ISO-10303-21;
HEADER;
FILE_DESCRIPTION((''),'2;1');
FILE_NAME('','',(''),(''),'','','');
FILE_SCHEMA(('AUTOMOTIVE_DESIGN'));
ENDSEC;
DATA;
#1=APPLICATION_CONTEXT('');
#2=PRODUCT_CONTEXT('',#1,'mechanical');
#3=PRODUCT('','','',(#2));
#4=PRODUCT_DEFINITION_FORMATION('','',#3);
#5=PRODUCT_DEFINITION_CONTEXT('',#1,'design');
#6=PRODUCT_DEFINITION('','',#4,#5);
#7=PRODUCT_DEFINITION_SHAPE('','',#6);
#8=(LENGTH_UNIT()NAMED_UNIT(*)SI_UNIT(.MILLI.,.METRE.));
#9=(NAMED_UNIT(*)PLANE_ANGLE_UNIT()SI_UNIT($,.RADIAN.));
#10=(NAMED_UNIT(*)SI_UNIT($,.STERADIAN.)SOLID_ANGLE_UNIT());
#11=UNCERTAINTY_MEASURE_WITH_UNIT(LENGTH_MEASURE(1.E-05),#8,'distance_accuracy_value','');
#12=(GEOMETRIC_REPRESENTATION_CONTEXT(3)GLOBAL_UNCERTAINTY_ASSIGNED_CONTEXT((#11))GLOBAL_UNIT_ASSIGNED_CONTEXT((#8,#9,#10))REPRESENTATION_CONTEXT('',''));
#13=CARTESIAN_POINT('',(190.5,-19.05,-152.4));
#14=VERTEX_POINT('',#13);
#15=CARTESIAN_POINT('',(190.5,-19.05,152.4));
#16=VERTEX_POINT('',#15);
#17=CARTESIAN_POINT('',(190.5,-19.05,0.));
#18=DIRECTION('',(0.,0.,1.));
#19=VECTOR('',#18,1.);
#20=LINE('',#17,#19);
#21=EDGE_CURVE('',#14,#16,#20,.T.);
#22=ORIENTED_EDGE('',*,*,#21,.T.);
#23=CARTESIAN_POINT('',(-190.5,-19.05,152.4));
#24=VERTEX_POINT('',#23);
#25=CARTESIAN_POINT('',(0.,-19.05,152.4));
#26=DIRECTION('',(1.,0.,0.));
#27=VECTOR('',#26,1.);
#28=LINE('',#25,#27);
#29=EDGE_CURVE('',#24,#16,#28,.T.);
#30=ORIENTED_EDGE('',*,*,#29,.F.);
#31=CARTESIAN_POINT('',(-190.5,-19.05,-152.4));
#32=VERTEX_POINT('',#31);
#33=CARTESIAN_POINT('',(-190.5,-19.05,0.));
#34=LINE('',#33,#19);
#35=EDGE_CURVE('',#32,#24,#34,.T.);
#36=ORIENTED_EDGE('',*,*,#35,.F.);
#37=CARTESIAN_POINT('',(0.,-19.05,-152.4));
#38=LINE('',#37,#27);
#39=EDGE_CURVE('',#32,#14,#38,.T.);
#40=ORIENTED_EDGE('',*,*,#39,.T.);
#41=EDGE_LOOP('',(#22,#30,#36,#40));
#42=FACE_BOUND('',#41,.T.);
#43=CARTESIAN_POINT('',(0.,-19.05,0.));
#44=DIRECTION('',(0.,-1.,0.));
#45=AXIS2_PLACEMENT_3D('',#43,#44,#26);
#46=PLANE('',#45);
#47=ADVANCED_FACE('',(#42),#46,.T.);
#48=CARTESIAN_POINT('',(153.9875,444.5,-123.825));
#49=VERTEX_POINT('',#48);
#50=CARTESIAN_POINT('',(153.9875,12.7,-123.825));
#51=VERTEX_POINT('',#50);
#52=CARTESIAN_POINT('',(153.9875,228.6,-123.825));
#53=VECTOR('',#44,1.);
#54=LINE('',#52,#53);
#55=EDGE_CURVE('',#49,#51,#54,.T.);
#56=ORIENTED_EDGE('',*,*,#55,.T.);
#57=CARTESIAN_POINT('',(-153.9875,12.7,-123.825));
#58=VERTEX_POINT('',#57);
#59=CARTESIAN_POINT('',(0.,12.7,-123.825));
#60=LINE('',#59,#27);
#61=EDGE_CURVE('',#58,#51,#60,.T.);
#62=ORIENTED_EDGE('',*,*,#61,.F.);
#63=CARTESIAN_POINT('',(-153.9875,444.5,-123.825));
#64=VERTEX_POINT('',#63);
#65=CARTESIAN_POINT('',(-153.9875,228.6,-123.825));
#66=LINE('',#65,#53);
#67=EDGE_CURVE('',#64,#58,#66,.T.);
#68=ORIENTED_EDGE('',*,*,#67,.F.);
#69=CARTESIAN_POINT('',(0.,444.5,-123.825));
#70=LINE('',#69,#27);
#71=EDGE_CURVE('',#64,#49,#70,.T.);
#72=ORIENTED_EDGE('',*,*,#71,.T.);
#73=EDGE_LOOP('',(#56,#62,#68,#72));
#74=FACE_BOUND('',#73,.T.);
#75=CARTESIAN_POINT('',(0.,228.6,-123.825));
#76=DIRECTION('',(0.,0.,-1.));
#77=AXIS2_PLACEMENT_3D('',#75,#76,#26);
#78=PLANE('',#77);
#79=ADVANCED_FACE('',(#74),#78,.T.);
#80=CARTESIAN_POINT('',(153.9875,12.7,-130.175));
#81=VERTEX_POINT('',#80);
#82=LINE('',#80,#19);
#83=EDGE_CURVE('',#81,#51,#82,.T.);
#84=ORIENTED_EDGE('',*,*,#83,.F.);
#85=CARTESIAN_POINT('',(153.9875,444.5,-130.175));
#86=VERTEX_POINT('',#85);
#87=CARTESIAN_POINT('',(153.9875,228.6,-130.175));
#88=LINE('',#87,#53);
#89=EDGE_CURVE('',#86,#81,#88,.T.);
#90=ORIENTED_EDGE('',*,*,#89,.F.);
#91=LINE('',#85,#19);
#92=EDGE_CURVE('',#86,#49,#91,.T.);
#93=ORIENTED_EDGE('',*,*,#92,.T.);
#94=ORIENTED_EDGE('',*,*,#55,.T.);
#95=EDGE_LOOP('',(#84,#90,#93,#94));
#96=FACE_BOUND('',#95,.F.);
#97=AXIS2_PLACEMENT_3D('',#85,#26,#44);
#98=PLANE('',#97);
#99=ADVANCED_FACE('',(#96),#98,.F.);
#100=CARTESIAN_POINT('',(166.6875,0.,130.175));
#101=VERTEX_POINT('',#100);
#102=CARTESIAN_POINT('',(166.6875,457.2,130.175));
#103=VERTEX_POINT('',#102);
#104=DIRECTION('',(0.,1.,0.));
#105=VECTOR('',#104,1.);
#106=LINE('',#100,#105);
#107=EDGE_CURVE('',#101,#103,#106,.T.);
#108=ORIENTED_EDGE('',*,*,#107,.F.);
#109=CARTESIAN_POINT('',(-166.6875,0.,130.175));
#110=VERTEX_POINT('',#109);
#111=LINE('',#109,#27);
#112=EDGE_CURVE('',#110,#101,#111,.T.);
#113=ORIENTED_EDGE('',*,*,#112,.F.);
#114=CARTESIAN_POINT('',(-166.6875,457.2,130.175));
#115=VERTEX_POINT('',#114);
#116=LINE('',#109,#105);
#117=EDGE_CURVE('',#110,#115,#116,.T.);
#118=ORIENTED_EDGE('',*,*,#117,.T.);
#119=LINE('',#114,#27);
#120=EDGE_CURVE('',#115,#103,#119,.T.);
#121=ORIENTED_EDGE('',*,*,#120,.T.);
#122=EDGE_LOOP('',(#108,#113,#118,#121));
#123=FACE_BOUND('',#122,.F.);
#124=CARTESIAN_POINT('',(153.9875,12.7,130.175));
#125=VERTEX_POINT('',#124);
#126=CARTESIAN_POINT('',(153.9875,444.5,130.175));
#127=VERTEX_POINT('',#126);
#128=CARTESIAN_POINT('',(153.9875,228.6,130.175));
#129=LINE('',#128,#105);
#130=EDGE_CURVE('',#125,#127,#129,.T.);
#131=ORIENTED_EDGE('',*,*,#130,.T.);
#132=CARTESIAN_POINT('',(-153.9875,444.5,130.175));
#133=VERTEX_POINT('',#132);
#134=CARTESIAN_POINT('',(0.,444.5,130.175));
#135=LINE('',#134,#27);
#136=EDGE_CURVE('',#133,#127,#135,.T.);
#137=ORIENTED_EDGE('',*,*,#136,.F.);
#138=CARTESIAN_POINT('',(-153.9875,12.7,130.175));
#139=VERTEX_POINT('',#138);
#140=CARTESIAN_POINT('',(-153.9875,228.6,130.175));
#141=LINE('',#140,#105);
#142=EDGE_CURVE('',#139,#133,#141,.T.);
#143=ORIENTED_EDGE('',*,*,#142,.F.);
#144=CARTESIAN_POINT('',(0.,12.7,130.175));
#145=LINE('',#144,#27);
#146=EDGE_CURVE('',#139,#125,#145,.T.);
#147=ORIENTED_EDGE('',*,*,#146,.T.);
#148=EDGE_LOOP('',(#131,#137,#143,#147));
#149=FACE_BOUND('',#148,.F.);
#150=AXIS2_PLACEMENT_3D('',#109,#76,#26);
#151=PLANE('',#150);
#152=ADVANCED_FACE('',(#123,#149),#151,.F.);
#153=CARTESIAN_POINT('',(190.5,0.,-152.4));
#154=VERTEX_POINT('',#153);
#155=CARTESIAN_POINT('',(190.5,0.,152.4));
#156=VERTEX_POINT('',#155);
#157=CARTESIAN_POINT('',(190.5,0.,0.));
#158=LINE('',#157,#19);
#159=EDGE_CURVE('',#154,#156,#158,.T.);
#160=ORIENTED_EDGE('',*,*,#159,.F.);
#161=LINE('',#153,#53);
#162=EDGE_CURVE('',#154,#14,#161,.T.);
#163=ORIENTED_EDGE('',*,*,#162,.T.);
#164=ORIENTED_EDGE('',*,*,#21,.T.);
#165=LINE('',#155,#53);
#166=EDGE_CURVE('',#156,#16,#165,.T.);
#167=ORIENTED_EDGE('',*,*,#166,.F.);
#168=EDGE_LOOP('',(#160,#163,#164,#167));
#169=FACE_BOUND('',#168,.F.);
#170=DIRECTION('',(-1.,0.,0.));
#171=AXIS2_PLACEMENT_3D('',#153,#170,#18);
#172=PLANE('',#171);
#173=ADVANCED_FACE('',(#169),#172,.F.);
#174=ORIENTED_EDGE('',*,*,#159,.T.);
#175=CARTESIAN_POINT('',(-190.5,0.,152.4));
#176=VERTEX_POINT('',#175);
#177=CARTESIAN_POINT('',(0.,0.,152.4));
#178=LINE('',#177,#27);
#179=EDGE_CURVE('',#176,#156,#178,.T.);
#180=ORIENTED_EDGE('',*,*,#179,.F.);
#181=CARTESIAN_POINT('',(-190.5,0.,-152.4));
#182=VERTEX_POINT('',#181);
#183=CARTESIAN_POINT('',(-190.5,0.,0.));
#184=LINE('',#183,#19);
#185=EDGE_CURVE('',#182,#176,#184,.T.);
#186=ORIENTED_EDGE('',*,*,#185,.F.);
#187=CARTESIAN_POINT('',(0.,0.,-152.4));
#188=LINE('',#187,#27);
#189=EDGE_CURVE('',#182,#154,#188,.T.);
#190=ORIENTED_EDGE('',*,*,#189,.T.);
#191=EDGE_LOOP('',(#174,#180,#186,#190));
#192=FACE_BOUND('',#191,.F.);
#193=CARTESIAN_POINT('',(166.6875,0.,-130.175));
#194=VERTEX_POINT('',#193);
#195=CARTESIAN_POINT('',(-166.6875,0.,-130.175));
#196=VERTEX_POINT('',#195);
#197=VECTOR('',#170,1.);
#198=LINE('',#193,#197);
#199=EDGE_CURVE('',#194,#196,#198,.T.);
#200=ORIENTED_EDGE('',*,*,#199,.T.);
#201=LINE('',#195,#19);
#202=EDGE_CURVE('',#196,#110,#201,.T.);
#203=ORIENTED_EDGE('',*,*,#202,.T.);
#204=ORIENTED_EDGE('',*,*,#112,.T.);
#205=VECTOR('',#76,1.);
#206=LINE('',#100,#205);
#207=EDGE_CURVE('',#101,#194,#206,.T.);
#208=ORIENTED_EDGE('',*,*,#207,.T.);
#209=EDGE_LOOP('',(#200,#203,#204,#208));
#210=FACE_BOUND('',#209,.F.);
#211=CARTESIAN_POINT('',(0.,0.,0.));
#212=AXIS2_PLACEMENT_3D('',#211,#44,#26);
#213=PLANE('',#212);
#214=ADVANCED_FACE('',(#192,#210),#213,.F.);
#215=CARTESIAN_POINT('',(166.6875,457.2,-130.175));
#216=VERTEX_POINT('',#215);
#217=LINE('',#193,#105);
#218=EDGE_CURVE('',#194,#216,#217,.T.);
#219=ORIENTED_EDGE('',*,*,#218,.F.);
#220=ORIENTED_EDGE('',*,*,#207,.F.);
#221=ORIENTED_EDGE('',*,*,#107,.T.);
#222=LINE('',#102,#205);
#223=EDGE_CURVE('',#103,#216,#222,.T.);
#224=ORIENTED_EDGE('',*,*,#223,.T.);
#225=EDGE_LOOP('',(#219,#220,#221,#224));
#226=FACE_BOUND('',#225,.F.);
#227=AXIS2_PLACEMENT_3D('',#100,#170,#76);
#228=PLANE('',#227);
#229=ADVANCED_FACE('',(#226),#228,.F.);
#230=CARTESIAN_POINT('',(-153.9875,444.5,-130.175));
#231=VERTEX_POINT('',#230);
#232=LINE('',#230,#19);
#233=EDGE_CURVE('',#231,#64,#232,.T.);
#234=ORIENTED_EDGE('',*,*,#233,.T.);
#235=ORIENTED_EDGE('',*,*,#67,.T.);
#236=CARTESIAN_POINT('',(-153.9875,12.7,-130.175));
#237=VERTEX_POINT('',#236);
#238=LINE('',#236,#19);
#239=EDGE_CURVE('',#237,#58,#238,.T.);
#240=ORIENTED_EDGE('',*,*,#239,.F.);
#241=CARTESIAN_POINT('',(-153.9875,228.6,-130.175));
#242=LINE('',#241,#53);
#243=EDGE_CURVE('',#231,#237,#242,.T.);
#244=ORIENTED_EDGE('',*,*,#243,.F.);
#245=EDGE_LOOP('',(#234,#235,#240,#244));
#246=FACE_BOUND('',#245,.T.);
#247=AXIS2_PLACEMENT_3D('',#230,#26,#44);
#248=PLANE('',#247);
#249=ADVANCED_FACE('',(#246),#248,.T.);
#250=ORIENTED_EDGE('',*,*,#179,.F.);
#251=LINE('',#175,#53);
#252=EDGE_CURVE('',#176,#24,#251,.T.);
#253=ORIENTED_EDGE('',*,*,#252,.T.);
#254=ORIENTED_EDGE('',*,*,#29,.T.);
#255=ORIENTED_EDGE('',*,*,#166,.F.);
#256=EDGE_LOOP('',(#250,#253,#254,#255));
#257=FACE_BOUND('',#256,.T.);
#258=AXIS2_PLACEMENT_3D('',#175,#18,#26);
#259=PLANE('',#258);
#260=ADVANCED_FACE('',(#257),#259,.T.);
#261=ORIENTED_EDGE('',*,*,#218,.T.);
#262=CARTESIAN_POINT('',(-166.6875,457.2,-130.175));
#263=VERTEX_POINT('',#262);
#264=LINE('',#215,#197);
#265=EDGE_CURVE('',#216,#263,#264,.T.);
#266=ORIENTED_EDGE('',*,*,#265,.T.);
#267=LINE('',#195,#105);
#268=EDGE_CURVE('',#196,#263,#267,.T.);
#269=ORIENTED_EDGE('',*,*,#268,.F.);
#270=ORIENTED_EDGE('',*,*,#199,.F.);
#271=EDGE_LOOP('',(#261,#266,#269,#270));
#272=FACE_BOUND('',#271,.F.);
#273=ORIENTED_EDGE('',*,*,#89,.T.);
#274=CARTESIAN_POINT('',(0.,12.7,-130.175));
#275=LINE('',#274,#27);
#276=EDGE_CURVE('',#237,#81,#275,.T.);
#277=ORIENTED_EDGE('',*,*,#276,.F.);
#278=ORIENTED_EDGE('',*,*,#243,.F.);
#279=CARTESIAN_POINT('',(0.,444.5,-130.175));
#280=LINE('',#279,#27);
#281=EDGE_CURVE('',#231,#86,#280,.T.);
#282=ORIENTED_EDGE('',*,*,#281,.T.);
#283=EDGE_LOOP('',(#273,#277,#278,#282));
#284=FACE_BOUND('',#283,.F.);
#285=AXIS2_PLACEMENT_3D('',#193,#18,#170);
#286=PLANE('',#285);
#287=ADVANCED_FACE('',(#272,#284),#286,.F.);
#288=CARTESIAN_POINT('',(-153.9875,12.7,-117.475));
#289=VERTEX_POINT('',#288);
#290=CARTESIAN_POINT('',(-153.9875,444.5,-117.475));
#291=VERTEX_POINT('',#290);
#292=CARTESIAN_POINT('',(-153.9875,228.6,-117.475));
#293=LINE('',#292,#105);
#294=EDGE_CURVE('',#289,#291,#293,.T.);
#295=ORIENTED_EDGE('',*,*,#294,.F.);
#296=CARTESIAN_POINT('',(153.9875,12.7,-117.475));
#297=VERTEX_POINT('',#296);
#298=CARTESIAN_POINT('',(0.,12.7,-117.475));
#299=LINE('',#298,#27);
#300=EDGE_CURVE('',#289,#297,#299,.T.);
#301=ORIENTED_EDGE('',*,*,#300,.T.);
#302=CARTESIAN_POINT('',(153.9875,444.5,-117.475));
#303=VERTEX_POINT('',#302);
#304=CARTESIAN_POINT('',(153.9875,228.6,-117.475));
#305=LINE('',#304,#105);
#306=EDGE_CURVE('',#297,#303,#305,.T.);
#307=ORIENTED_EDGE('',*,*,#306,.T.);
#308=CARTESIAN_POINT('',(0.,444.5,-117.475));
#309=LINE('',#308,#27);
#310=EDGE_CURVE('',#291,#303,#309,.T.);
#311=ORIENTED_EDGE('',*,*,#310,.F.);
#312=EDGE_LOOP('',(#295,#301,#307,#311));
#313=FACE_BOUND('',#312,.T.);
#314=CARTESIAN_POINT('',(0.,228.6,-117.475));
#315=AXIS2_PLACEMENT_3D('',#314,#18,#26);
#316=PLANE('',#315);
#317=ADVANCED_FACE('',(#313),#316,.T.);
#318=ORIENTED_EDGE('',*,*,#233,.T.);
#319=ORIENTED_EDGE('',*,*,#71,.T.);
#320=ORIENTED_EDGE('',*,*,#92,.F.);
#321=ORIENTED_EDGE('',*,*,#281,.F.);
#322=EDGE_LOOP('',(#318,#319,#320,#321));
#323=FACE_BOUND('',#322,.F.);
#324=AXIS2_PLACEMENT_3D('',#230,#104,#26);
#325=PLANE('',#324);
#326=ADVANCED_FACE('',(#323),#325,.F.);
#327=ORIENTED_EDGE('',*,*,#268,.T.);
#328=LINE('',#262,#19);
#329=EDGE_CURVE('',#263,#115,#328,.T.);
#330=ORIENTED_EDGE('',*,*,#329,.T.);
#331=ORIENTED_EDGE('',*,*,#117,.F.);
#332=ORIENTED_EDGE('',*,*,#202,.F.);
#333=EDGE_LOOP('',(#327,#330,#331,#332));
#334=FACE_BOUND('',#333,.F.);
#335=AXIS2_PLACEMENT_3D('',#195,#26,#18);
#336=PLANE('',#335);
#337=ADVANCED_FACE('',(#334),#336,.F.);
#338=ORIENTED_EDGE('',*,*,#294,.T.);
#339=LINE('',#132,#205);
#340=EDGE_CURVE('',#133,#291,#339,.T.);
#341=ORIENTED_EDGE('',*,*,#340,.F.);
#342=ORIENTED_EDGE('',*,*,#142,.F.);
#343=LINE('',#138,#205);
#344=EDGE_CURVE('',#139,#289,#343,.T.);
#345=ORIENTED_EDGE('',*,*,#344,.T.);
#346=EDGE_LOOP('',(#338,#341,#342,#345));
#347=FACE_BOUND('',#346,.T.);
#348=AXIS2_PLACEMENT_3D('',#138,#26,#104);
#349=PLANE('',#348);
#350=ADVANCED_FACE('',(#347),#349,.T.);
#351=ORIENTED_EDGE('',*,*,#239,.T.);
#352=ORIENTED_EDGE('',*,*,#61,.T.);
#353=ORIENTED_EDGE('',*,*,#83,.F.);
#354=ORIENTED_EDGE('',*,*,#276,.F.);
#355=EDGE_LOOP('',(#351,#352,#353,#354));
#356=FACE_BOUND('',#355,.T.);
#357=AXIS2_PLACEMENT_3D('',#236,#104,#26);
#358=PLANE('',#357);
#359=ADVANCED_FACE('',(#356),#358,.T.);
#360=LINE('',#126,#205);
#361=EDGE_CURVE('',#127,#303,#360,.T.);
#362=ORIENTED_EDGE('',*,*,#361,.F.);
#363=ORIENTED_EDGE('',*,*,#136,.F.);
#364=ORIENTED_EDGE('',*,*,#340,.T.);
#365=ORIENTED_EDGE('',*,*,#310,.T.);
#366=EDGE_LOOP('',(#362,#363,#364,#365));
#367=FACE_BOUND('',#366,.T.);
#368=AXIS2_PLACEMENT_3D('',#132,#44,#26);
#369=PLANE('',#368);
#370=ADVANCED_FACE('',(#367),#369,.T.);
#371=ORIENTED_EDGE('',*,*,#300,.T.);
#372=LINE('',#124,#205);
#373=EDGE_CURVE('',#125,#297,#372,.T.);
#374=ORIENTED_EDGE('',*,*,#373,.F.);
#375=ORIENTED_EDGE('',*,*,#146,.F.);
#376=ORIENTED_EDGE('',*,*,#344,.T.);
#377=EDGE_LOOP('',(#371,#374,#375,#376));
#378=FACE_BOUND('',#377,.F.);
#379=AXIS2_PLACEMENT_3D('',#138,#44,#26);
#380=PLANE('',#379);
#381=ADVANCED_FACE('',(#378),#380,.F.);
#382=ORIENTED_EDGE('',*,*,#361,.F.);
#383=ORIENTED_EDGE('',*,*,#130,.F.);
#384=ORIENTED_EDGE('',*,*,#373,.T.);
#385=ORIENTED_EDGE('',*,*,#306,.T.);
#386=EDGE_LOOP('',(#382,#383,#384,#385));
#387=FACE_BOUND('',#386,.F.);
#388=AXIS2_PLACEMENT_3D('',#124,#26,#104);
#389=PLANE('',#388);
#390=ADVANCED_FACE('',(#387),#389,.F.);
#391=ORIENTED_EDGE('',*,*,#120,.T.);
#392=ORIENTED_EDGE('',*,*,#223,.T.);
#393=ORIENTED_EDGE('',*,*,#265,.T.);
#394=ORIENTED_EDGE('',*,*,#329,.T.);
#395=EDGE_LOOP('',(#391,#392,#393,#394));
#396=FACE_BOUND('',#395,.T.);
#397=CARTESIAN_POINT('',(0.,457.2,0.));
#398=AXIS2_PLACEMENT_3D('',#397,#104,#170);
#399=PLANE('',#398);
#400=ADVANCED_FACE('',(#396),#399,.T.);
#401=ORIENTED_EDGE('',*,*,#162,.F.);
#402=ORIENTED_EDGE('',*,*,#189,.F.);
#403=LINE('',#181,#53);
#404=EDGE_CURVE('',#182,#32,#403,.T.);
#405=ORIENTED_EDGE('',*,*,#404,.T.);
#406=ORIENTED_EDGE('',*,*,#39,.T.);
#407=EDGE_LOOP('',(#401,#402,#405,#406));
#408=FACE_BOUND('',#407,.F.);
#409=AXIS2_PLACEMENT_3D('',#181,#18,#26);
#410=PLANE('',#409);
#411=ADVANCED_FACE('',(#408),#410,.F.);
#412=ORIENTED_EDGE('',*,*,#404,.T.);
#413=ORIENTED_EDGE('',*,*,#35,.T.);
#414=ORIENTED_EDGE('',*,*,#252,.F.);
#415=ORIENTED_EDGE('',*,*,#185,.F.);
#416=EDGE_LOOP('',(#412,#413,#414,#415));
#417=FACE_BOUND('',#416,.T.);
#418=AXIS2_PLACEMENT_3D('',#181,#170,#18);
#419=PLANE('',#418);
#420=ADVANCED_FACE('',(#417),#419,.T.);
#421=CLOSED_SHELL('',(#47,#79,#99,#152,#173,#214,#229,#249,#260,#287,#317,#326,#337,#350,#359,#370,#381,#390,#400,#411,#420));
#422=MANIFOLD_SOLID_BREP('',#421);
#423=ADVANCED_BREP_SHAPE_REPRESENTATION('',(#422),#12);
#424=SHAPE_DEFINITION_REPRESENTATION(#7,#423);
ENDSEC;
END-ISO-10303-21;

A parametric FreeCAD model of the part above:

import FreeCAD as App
import Part
import Sketcher
from FreeCAD import Vector
Q = App.Units.Quantity

doc = App.newDocument("Part")
body = doc.addObject("PartDesign::Body", "Body")

# Sketch on XZ plane
sketch1 = body.newObject("Sketcher::SketchObject", "Sketch")
sketch1.AttachmentSupport = (doc.getObject("XZ_Plane"), [""])
sketch1.MapMode = "FlatFace"
sketch1.addGeometry([
    Part.LineSegment(Vector(-190, 152, 0), Vector(-190, -152, 0)),
    Part.LineSegment(Vector(-190, -152, 0), Vector(190, -152, 0)),
    Part.LineSegment(Vector(190, -152, 0), Vector(190, 152, 0)),
    Part.LineSegment(Vector(190, 152, 0), Vector(-190, 152, 0)),
], False)
sketch1.addConstraint([
    Sketcher.Constraint("Coincident", 0, 2, 1, 1),
    Sketcher.Constraint("Coincident", 1, 2, 2, 1),
    Sketcher.Constraint("Coincident", 2, 2, 3, 1),
    Sketcher.Constraint("Coincident", 3, 2, 0, 1),
    Sketcher.Constraint("Vertical", 0),
    Sketcher.Constraint("Horizontal", 1),
    Sketcher.Constraint("Vertical", 2),
    Sketcher.Constraint("Horizontal", 3),
    Sketcher.Constraint("Symmetric", 0, 2, 2, 2, -1, 1),
    Sketcher.Constraint("DistanceX", 1, 1, 1, 2, Q("15 in")),
    Sketcher.Constraint("DistanceY", 0, 2, 0, 1, Q("12 in")),
])
pad1 = body.newObject("PartDesign::Pad", "Pad")
pad1.Profile = sketch1
pad1.Length = Q("0.75 in")

# Sketch on XZ plane
sketch2 = body.newObject("Sketcher::SketchObject", "Sketch001")
sketch2.AttachmentSupport = (doc.getObject("XZ_Plane"), [""])
sketch2.MapMode = "FlatFace"
sketch2.addGeometry([
    Part.LineSegment(Vector(167, -130, 0), Vector(-167, -130, 0)),
    Part.LineSegment(Vector(-167, -130, 0), Vector(-167, 130, 0)),
    Part.LineSegment(Vector(-167, 130, 0), Vector(167, 130, 0)),
    Part.LineSegment(Vector(167, 130, 0), Vector(167, -130, 0)),
], False)
sketch2.addConstraint([
    Sketcher.Constraint("Coincident", 0, 2, 1, 1),
    Sketcher.Constraint("Coincident", 1, 2, 2, 1),
    Sketcher.Constraint("Coincident", 2, 2, 3, 1),
    Sketcher.Constraint("Coincident", 3, 2, 0, 1),
    Sketcher.Constraint("Horizontal", 0),
    Sketcher.Constraint("Vertical", 1),
    Sketcher.Constraint("Horizontal", 2),
    Sketcher.Constraint("Vertical", 3),
    Sketcher.Constraint("Symmetric", 0, 2, 2, 2, -1, 1),
    Sketcher.Constraint("DistanceY", 1, 1, 1, 2, Q("10.25 in")),
    Sketcher.Constraint("DistanceX", 0, 2, 0, 1, Q("13.125 in")),
])
pad2 = body.newObject("PartDesign::Pad", "Pad001")
pad2.Profile = sketch2
pad2.Length = Q("18 in")
pad2.Reversed = True

# Sketch on XY plane
sketch3 = body.newObject("Sketcher::SketchObject", "Sketch002")
sketch3.AttachmentSupport = (doc.getObject("XY_Plane"), [""])
sketch3.MapMode = "FlatFace"
sketch3.AttachmentOffset = App.Placement(Vector(0, 0, -5.125 * 25.4), App.Rotation())
sketch3.addGeometry([
    Part.LineSegment(Vector(-154, 13, 0), Vector(-154, 444, 0)),
    Part.LineSegment(Vector(-154, 444, 0), Vector(154, 444, 0)),
    Part.LineSegment(Vector(154, 444, 0), Vector(154, 13, 0)),
    Part.LineSegment(Vector(154, 13, 0), Vector(-154, 13, 0)),
], False)
sketch3.addConstraint([
    Sketcher.Constraint("Coincident", 0, 2, 1, 1),
    Sketcher.Constraint("Coincident", 1, 2, 2, 1),
    Sketcher.Constraint("Coincident", 2, 2, 3, 1),
    Sketcher.Constraint("Coincident", 3, 2, 0, 1),
    Sketcher.Constraint("Vertical", 0),
    Sketcher.Constraint("Horizontal", 1),
    Sketcher.Constraint("Vertical", 2),
    Sketcher.Constraint("Horizontal", 3),
    Sketcher.Constraint("DistanceY", 0, 1, 0, 2, Q("17 in")),
    Sketcher.Constraint("DistanceY", -1, 1, 0, 2, Q("17.5 in")),
    Sketcher.Constraint("DistanceX", 1, 1, 1, 2, Q("12.125 in")),
    Sketcher.Constraint("DistanceX", 0, 2, -1, 1, Q("6.0625 in")),
])
pocket1 = body.newObject("PartDesign::Pocket", "Pocket")
pocket1.Profile = sketch3
pocket1.Length = Q("0.25 in")
pocket1.Reversed = True

# Sketch on XY plane
sketch4 = body.newObject("Sketcher::SketchObject", "Sketch003")
sketch4.AttachmentSupport = (doc.getObject("XY_Plane"), [""])
sketch4.MapMode = "FlatFace"
sketch4.AttachmentOffset = App.Placement(Vector(0, 0, 5.125 * 25.4), App.Rotation())
sketch4.addGeometry([
    Part.LineSegment(Vector(-154, 444, 0), Vector(-154, 13, 0)),
    Part.LineSegment(Vector(-154, 13, 0), Vector(154, 13, 0)),
    Part.LineSegment(Vector(154, 13, 0), Vector(154, 444, 0)),
    Part.LineSegment(Vector(154, 444, 0), Vector(-154, 444, 0)),
], False)
sketch4.addConstraint([
    Sketcher.Constraint("Coincident", 0, 2, 1, 1),
    Sketcher.Constraint("Coincident", 1, 2, 2, 1),
    Sketcher.Constraint("Coincident", 2, 2, 3, 1),
    Sketcher.Constraint("Coincident", 3, 2, 0, 1),
    Sketcher.Constraint("Vertical", 0),
    Sketcher.Constraint("Horizontal", 1),
    Sketcher.Constraint("Vertical", 2),
    Sketcher.Constraint("Horizontal", 3),
    Sketcher.Constraint("DistanceY", 0, 2, 0, 1, Q("17 in")),
    Sketcher.Constraint("DistanceY", -1, 1, 0, 2, Q("0.5 in")),
    Sketcher.Constraint("DistanceX", 1, 1, 1, 2, Q("12.125 in")),
    Sketcher.Constraint("DistanceX", 0, 2, -1, 1, Q("6.0625 in")),
])
pocket2 = body.newObject("PartDesign::Pocket", "Pocket001")
pocket2.Profile = sketch4
pocket2.Length = Q("9.75 in")

doc.recompute()
